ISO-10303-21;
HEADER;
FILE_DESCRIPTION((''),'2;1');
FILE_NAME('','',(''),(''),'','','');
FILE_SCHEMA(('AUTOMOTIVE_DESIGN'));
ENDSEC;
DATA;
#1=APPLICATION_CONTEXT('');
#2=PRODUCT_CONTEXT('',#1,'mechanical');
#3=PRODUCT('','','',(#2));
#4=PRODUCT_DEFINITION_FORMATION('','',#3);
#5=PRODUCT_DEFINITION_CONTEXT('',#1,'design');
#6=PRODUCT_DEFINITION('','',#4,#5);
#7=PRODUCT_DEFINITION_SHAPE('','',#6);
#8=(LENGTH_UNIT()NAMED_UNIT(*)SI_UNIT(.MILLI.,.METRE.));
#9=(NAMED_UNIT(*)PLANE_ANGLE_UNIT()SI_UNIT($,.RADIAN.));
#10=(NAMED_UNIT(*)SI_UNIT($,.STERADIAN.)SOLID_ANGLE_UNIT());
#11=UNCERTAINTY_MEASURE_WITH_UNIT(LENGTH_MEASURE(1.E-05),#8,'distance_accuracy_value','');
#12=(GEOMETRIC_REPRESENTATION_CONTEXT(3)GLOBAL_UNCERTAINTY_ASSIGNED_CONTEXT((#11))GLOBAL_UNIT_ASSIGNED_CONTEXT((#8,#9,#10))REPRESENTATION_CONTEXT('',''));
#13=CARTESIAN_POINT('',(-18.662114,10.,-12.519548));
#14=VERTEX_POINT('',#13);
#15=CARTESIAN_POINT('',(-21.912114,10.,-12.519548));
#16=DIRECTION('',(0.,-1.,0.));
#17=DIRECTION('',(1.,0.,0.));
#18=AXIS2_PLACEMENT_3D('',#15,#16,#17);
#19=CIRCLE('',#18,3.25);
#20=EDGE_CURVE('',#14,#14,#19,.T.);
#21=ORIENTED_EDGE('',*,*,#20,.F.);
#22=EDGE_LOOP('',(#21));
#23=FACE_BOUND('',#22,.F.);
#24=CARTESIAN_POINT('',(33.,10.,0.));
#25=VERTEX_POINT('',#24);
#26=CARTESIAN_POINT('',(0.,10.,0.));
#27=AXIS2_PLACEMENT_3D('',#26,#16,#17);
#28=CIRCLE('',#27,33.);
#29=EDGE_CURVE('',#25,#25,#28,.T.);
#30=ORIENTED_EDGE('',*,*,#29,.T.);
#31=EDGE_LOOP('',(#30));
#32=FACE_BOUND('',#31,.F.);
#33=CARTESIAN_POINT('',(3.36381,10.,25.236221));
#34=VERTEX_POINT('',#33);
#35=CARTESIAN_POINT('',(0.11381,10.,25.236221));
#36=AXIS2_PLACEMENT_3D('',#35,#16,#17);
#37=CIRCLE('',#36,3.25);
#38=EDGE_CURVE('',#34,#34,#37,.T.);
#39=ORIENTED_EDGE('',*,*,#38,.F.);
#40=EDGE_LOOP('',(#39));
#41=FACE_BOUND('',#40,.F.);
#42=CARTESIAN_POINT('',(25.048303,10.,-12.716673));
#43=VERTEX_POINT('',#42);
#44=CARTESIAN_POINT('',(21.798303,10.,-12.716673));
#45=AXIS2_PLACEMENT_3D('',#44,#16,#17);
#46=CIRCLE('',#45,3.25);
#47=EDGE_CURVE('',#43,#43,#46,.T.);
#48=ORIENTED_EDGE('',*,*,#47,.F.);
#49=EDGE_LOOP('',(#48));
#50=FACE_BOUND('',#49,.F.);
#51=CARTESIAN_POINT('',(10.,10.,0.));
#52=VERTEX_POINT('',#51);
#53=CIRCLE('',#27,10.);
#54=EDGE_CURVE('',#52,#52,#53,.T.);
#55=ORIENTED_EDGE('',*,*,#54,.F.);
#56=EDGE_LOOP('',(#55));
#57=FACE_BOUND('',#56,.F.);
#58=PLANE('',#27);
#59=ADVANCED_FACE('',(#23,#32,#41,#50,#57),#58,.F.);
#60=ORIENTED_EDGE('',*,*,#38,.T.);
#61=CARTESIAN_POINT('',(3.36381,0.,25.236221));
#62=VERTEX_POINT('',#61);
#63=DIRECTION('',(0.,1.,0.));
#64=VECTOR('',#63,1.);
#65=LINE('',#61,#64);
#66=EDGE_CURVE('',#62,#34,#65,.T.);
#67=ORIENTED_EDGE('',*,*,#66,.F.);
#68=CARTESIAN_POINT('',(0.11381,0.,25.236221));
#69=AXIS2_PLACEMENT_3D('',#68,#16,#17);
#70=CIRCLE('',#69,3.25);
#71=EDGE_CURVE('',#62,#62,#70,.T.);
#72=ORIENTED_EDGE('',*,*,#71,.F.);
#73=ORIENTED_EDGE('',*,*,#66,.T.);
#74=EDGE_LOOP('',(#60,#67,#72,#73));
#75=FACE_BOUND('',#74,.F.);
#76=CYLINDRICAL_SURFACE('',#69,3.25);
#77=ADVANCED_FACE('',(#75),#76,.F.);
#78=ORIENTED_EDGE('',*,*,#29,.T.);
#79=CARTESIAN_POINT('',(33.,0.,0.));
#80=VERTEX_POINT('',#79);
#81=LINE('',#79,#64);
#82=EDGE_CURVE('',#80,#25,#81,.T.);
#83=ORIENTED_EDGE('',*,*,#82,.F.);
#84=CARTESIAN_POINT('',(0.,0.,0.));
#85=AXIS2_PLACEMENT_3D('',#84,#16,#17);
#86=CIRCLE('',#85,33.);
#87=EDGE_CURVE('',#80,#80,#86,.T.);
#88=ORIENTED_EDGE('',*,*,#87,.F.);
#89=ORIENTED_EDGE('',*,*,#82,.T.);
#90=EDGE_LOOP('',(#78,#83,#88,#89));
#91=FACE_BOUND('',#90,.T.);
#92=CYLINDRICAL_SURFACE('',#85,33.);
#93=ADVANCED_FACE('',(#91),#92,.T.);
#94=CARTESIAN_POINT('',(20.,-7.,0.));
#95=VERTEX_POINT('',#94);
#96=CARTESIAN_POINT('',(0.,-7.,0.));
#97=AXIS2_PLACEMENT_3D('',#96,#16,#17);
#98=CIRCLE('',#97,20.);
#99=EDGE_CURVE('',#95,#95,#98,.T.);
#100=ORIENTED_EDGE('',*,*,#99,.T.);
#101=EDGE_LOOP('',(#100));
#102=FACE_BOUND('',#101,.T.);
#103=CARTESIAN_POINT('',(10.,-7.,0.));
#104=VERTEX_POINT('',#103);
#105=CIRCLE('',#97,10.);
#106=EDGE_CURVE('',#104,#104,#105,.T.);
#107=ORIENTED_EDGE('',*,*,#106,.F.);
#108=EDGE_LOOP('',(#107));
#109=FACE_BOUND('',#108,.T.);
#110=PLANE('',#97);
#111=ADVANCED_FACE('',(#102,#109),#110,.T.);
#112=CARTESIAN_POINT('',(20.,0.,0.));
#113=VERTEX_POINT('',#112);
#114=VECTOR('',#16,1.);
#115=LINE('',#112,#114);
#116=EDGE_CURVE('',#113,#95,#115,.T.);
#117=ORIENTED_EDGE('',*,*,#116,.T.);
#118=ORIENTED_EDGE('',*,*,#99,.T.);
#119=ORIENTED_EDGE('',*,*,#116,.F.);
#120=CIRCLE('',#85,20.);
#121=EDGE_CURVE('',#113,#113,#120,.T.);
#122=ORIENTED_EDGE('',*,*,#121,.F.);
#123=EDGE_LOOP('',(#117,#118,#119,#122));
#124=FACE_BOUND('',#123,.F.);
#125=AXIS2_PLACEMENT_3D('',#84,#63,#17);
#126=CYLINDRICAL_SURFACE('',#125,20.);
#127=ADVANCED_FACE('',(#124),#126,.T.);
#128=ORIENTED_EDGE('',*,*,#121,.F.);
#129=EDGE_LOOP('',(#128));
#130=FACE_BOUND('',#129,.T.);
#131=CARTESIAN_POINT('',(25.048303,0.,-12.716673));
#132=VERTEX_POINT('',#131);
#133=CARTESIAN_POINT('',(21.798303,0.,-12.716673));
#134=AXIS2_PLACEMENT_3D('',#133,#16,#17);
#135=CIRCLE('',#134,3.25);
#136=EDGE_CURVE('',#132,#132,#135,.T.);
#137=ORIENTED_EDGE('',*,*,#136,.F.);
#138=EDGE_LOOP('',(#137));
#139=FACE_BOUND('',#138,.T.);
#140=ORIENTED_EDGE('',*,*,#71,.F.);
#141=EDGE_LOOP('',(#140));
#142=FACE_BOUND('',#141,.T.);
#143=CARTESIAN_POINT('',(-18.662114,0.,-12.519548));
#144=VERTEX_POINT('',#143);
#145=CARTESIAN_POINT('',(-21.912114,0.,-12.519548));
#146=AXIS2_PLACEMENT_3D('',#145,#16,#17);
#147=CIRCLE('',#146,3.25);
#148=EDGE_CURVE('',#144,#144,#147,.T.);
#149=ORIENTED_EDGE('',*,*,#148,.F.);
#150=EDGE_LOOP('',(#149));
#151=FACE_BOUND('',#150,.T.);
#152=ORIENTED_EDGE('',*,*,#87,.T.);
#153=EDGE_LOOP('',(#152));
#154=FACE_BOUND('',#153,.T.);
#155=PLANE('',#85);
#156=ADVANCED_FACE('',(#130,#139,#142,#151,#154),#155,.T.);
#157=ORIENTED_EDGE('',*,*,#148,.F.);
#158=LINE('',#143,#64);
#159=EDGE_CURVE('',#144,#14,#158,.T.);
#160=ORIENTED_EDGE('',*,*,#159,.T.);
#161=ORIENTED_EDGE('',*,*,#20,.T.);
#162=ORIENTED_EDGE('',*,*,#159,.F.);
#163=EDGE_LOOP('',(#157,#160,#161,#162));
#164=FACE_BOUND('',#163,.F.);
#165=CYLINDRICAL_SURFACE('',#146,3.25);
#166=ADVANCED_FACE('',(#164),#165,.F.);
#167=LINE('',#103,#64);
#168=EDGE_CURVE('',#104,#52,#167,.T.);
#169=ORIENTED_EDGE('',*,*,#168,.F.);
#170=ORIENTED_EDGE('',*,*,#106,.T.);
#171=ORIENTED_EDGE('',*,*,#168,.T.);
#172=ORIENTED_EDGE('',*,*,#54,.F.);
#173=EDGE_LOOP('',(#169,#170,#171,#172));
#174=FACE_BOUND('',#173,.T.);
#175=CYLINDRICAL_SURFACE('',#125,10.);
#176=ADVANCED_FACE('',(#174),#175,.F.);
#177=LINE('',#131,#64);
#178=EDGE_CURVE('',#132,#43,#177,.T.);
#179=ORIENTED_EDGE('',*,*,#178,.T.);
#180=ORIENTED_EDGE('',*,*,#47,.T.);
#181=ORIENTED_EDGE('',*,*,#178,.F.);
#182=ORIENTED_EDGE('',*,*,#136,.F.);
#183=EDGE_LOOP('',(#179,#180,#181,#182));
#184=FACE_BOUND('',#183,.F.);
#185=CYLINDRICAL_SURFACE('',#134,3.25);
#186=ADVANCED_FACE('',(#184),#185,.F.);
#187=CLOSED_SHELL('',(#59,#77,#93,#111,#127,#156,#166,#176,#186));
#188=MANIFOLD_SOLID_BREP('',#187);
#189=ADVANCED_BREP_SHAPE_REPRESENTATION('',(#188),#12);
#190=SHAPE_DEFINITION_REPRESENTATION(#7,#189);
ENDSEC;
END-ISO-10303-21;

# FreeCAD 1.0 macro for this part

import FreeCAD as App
import Part
import Sketcher
from FreeCAD import Vector
Q = App.Units.Quantity

doc = App.newDocument("Part")
body = doc.addObject("PartDesign::Body", "Body")

# Sketch on XZ plane
sketch1 = body.newObject("Sketcher::SketchObject", "Sketch")
sketch1.AttachmentSupport = (doc.getObject("XZ_Plane"), [""])
sketch1.MapMode = "FlatFace"
sketch1.addGeometry(Part.Circle(Vector(0, 0, 0), Vector(0, 0, 1), 33), False)
sketch1.addGeometry(Part.Circle(Vector(-21.912114, -12.519548, 0), Vector(0, 0, 1), 3.25), False)
sketch1.addGeometry(Part.Circle(Vector(21.798303, -12.716673, 0), Vector(0, 0, 1), 3.25), False)
sketch1.addGeometry(Part.Circle(Vector(0, 0, 0), Vector(0, 0, 1), 10), False)
sketch1.addGeometry(Part.Circle(Vector(0.11381, 25.236221, 0), Vector(0, 0, 1), 3.25), False)
sketch1.addConstraint(Sketcher.Constraint("Coincident", 0, 3, -1, 1))
sketch1.addConstraint(Sketcher.Constraint("Coincident", 3, 3, -1, 1))
sketch1.addConstraint(Sketcher.Constraint("Equal", 1, 2))
sketch1.addConstraint(Sketcher.Constraint("Equal", 2, 4))
sketch1.addConstraint(Sketcher.Constraint("Diameter", 0, Q("66 mm")))
sketch1.addConstraint(Sketcher.Constraint("Diameter", 3, Q("20 mm")))
sketch1.addConstraint(Sketcher.Constraint("Diameter", 1, Q("6.5 mm")))
sketch1.addConstraint(Sketcher.Constraint("DistanceX", -1, 1, 4, 3, Q("0.11381 mm")))
sketch1.addConstraint(Sketcher.Constraint("DistanceY", -1, 1, 4, 3, Q("25.236221 mm")))
sketch1.addConstraint(Sketcher.Constraint("DistanceY", 1, 3, 4, 3, Q("37.755769 mm")))
sketch1.addConstraint(Sketcher.Constraint("DistanceX", 1, 3, -1, 1, Q("21.912114 mm")))
sketch1.addConstraint(Sketcher.Constraint("DistanceX", -1, 1, 2, 3, Q("21.798303 mm")))
sketch1.addConstraint(Sketcher.Constraint("DistanceY", 2, 3, -1, 1, Q("12.716673 mm")))
pad1 = body.newObject("PartDesign::Pad", "Pad")
pad1.Profile = sketch1
pad1.Length = 10
pad1.Reversed = True

# Sketch on XZ plane
sketch2 = body.newObject("Sketcher::SketchObject", "Sketch001")
sketch2.AttachmentSupport = (doc.getObject("XZ_Plane"), [""])
sketch2.MapMode = "FlatFace"
sketch2.addGeometry(Part.Circle(Vector(0, 0, 0), Vector(0, 0, 1), 20), False)
sketch2.addGeometry(Part.Circle(Vector(0, 0, 0), Vector(0, 0, 1), 10), False)
sketch2.addConstraint(Sketcher.Constraint("Coincident", 0, 3, -1, 1))
sketch2.addConstraint(Sketcher.Constraint("Coincident", 1, 3, -1, 1))
sketch2.addConstraint(Sketcher.Constraint("Diameter", 0, Q("40 mm")))
sketch2.addConstraint(Sketcher.Constraint("Diameter", 1, Q("20 mm")))
pad2 = body.newObject("PartDesign::Pad", "Pad001")
pad2.Profile = sketch2
pad2.Length = 7

doc.recompute()
